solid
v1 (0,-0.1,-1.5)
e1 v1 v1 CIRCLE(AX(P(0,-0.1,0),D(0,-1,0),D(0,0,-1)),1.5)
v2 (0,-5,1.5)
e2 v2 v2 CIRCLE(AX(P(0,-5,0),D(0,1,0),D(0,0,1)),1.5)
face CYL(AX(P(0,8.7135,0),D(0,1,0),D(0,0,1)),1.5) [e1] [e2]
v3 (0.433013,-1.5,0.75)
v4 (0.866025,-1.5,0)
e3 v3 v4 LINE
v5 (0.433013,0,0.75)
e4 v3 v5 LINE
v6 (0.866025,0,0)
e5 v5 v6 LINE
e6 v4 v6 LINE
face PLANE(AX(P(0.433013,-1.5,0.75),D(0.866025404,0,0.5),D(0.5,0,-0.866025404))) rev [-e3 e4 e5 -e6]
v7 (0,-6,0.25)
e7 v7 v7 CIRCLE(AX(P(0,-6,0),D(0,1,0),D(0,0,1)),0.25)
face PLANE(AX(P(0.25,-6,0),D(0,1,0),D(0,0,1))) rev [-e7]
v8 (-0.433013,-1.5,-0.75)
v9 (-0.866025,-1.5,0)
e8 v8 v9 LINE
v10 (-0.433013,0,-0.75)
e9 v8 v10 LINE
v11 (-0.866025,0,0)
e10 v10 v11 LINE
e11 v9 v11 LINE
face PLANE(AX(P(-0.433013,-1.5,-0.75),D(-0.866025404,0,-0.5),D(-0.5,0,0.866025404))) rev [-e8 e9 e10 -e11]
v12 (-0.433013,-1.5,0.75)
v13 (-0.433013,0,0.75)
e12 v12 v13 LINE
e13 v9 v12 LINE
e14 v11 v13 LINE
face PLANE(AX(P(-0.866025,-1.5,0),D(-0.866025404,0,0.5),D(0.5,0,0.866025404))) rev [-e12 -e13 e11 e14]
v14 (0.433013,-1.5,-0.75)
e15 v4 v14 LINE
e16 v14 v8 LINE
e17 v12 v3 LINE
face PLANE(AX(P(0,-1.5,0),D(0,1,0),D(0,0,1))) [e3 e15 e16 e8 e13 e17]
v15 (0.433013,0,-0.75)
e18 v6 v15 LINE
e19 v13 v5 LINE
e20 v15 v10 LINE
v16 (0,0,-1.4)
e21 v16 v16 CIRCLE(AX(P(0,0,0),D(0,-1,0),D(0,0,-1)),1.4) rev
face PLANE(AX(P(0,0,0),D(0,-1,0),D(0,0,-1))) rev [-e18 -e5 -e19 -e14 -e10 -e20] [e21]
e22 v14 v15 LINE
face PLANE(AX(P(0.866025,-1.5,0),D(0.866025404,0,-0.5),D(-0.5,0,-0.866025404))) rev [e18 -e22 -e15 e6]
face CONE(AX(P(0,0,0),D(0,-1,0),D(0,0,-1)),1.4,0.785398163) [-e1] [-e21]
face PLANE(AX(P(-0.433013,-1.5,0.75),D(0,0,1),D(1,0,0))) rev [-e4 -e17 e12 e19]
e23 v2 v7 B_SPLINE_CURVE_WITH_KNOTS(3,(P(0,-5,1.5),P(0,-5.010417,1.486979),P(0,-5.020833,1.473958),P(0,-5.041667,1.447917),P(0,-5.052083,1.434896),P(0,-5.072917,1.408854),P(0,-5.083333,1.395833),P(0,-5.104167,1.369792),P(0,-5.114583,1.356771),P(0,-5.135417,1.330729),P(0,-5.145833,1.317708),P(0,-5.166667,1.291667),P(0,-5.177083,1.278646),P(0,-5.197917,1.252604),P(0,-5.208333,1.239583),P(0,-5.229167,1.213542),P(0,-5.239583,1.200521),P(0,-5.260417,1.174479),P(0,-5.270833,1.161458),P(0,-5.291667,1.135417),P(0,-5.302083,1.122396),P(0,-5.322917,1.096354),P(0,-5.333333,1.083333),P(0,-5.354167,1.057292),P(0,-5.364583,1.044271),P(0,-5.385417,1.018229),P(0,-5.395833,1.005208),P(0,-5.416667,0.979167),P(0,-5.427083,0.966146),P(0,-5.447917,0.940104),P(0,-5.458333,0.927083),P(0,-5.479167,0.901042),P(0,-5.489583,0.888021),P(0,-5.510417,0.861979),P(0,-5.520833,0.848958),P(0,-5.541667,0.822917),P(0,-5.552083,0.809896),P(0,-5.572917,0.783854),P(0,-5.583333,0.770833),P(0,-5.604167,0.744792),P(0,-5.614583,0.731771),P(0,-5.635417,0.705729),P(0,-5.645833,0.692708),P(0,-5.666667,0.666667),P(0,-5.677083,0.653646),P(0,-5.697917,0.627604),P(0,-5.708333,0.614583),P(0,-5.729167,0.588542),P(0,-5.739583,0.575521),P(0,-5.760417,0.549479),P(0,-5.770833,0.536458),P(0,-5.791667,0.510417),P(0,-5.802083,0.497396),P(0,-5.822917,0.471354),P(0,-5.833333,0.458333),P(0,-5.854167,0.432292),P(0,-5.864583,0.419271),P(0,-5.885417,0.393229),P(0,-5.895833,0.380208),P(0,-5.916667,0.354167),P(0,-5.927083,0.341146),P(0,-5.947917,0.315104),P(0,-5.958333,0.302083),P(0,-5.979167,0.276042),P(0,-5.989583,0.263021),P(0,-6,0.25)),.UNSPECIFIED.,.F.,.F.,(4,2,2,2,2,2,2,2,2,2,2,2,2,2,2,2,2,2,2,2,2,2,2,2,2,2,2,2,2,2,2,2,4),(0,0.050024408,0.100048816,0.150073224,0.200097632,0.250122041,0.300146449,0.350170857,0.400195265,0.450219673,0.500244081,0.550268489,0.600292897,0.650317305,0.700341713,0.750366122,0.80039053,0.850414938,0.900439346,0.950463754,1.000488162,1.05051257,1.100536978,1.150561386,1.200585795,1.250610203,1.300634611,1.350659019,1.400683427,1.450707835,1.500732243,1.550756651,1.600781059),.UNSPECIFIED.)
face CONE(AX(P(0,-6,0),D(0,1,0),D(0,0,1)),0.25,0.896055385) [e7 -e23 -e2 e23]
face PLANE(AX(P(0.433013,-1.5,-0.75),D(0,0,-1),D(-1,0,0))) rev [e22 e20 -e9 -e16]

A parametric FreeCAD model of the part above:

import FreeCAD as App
import Part
import Sketcher
from FreeCAD import Vector
Q = App.Units.Quantity


def edges_at(feature, points):
    """Names of the edges that pass closest to the given points."""
    edges = feature.Shape.Edges
    near = lambda p: min(range(len(edges)), key=lambda i: edges[i].distToShape(Part.Vertex(*p))[0])
    return sorted({f"Edge{near(p) + 1}" for p in points})


def add_polygon(sketch, points):
    """Adds a closed chain of lines whose ends are joined by coincident constraints."""
    first, n = sketch.GeometryCount, len(points)
    for a, b in zip(points, points[1:] + points[:1]):
        sketch.addGeometry(Part.LineSegment(App.Vector(*a, 0), App.Vector(*b, 0)), False)
    for i in range(n):
        sketch.addConstraint(Sketcher.Constraint("Coincident", first + i, 2, first + (i + 1) % n, 1))

doc = App.newDocument("Part")
params = doc.addObject("Spreadsheet::Sheet", "Params")
for row, (alias, value) in enumerate([
    ("sketch1_height", "6 mm"),
    ("sketch1_height2", "5 mm"),
    ("sketch1_width", "1.5 mm"),
    ("sketch1_width2", "0.25 mm"),
    ("revolution_angle", "360 deg"),
    ("pocket1_length", "1.5 mm"),
    ("chamfer_size", "0.1 mm"),
], start=1):
    params.set(f"A{row}", alias)
    params.set(f"B{row}", "=" + value)
    params.setAlias(f"B{row}", alias)

body = doc.addObject("PartDesign::Body", "Body")

sketch1 = body.newObject("Sketcher::SketchObject", "Sketch")
sketch1.AttachmentSupport = (doc.getObject("XY_Plane"), [""])
sketch1.MapMode = "FlatFace"
add_polygon(sketch1, [(1.5, 0), (0, 0), (0, -6), (0.25, -6), (1.5, -5)])
sketch1.addConstraint(Sketcher.Constraint("Horizontal", 0))
sketch1.addConstraint(Sketcher.Constraint("Vertical", 1))
sketch1.addConstraint(Sketcher.Constraint("Horizontal", 2))
sketch1.addConstraint(Sketcher.Constraint("Vertical", 4))
sketch1.addConstraint(Sketcher.Constraint("Coincident", 0, 2, -1, 1))
sketch1.addConstraint(Sketcher.Constraint("DistanceY", 1, 2, 1, 1, 6.0))
sketch1.addConstraint(Sketcher.Constraint("DistanceY", 4, 1, 4, 2, 5.0))
sketch1.addConstraint(Sketcher.Constraint("DistanceX", 0, 2, 0, 1, 1.5))
sketch1.addConstraint(Sketcher.Constraint("DistanceX", 2, 1, 2, 2, 0.25))
sketch1.setExpression("Constraints[10]", "Params.sketch1_height")
sketch1.setExpression("Constraints[11]", "Params.sketch1_height2")
sketch1.setExpression("Constraints[12]", "Params.sketch1_width")
sketch1.setExpression("Constraints[13]", "Params.sketch1_width2")
revolution = body.newObject("PartDesign::Revolution", "Revolution")
revolution.Profile = sketch1
revolution.ReferenceAxis = (sketch1, ["V_Axis"])
revolution.setExpression("Angle", "Params.revolution_angle")

sketch2 = body.newObject("Sketcher::SketchObject", "Sketch001")
sketch2.AttachmentSupport = (doc.getObject("XZ_Plane"), [""])
sketch2.MapMode = "FlatFace"
add_polygon(sketch2, [(-0.4, 0.8), (0.4, 0.8), (0.9, 0), (0.4, -0.8), (-0.4, -0.8), (-0.9, 0)])
sketch2.addConstraint(Sketcher.Constraint("Horizontal", 0))
sketch2.addConstraint(Sketcher.Constraint("Horizontal", 3))
sketch2.addConstraint(Sketcher.Constraint("Symmetric", 0, 2, 3, 2, -1, 1))
sketch2.addConstraint(Sketcher.Constraint("Symmetric", 1, 2, 4, 2, -1, 1))
sketch2.addConstraint(Sketcher.Constraint("PointOnObject", 1, 2, -1))
sketch2.addConstraint(Sketcher.Constraint("Parallel", 2, 5))
sketch2.addConstraint(Sketcher.Constraint("Vertical", 0, 2, 2, 2))
sketch2.addConstraint(Sketcher.Constraint("Angle", 1, Q("-60 deg")))
sketch2.addConstraint(Sketcher.Constraint("DistanceY", 2, 2, 0, 2, 1.5))
sketch2.addConstraint(Sketcher.Constraint("DistanceX", 0, 1, 0, 2, 0.866025))
pocket1 = body.newObject("PartDesign::Pocket", "Pocket")
pocket1.Profile = sketch2
pocket1.setExpression("Length", "Params.pocket1_length")
pocket1.Reversed = True
doc.recompute()

chamfer = body.newObject("PartDesign::Chamfer", "Chamfer")
chamfer.Base = (pocket1, edges_at(pocket1, [(0, 0, -1.5)]))
chamfer.setExpression("Size", "Params.chamfer_size")

doc.recompute()
